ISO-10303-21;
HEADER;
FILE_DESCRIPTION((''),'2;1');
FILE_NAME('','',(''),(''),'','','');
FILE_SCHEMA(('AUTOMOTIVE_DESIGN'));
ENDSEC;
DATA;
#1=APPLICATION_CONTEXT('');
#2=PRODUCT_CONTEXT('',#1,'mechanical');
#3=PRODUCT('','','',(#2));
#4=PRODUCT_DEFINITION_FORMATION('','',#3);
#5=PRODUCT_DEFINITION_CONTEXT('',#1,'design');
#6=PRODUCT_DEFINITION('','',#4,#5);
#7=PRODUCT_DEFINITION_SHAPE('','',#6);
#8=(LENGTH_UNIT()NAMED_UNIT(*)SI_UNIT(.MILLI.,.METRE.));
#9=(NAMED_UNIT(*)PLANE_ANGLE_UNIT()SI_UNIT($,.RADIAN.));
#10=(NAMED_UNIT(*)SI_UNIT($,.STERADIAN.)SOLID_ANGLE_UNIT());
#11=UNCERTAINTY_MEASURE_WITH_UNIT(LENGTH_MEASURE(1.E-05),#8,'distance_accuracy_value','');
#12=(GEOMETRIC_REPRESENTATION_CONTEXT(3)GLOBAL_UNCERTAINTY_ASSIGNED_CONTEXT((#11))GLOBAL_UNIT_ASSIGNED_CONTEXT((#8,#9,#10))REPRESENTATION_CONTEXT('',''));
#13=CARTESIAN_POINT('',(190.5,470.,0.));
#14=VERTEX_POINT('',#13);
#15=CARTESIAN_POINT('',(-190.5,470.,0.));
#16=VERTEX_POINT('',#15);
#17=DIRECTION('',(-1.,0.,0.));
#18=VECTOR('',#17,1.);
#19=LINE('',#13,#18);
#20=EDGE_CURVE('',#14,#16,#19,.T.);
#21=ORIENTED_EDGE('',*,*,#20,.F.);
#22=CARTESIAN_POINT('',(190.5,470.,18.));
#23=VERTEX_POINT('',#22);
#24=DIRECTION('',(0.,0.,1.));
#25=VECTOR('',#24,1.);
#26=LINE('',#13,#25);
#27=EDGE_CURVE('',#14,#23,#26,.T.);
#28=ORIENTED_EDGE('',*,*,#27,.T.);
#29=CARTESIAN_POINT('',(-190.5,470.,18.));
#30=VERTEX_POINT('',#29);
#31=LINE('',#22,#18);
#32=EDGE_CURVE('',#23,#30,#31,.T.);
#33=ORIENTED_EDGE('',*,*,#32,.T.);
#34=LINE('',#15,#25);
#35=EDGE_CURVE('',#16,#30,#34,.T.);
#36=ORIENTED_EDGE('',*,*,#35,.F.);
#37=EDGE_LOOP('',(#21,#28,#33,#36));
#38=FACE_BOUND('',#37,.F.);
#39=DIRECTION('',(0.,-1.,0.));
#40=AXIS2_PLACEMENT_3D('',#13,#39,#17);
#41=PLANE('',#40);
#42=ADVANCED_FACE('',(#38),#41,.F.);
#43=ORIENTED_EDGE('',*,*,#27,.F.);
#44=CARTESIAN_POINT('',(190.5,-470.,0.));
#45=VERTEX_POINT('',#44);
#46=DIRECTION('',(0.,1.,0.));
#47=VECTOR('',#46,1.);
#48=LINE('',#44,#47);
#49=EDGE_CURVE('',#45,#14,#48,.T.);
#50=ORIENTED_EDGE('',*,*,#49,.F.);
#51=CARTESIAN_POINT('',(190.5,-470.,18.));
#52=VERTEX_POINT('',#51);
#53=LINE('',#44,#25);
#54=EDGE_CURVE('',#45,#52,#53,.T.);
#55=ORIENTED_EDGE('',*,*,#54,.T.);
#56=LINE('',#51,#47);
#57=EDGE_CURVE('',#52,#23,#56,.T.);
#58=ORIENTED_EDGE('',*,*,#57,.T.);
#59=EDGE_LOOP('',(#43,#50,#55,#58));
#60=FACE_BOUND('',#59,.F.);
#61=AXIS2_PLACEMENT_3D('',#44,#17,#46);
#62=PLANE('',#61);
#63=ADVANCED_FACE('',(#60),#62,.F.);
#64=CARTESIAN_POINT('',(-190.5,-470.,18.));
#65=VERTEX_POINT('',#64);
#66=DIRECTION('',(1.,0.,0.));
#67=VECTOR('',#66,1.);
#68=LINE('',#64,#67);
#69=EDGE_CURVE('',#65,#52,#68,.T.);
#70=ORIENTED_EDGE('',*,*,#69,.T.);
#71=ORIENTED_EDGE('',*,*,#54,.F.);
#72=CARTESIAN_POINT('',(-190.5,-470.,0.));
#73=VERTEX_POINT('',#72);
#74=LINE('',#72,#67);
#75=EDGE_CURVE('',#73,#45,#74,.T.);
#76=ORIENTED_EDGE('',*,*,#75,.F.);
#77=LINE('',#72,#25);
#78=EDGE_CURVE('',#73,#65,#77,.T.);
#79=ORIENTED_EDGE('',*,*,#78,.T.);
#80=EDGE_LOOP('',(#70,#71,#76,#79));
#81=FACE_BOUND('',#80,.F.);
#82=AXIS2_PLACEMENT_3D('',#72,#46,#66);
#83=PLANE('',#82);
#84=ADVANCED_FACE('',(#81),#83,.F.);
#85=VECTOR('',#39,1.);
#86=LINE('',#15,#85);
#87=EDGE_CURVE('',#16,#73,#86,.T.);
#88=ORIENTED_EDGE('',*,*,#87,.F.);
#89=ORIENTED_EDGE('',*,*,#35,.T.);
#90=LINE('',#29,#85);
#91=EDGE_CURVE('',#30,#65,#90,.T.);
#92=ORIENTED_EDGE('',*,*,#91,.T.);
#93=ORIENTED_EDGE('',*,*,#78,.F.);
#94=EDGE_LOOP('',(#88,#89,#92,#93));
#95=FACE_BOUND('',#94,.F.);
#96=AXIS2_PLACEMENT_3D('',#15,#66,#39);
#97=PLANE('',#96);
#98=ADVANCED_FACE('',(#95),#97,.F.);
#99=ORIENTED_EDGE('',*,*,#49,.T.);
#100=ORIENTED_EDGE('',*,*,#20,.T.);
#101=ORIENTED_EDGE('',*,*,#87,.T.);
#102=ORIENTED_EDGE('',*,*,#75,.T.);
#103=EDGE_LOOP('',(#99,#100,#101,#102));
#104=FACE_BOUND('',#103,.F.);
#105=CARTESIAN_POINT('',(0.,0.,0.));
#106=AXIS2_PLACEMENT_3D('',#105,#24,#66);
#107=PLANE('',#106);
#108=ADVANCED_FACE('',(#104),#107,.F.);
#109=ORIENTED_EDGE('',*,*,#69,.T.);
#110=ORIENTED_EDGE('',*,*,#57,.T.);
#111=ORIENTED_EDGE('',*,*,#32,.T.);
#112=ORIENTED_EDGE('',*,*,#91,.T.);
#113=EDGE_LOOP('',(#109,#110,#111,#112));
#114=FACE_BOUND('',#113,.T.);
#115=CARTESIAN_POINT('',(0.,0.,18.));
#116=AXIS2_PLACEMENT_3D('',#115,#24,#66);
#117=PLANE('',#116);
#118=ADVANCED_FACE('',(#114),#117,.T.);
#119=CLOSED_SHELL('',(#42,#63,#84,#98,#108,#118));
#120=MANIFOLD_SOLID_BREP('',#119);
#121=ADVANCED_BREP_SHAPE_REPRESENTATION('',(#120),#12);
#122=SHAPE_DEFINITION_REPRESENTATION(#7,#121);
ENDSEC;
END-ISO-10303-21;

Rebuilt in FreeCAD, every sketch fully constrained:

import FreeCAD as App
import Part
import Sketcher
from FreeCAD import Vector


def add_polygon(sketch, points):
    """Adds a closed chain of lines whose ends are joined by coincident constraints."""
    first, n = sketch.GeometryCount, len(points)
    for a, b in zip(points, points[1:] + points[:1]):
        sketch.addGeometry(Part.LineSegment(App.Vector(*a, 0), App.Vector(*b, 0)), False)
    for i in range(n):
        sketch.addConstraint(Sketcher.Constraint("Coincident", first + i, 2, first + (i + 1) % n, 1))

doc = App.newDocument("Part")
body = doc.addObject("PartDesign::Body", "Body")

sketch1 = body.newObject("Sketcher::SketchObject", "Sketch")
sketch1.AttachmentSupport = (doc.getObject("XY_Plane"), [""])
sketch1.MapMode = "FlatFace"
add_polygon(sketch1, [(-190, 470), (-190, -470), (190, -470), (190, 470)])
sketch1.addConstraint(Sketcher.Constraint("Vertical", 0))
sketch1.addConstraint(Sketcher.Constraint("Horizontal", 1))
sketch1.addConstraint(Sketcher.Constraint("Vertical", 2))
sketch1.addConstraint(Sketcher.Constraint("Horizontal", 3))
sketch1.addConstraint(Sketcher.Constraint("Symmetric", 0, 2, 2, 2, -1, 1))
sketch1.addConstraint(Sketcher.Constraint("DistanceX", 1, 1, 1, 2, 381.0))
sketch1.addConstraint(Sketcher.Constraint("DistanceY", 0, 2, 0, 1, 940.0))
pad1 = body.newObject("PartDesign::Pad", "Pad")
pad1.Profile = sketch1
pad1.Length = 18

doc.recompute()
